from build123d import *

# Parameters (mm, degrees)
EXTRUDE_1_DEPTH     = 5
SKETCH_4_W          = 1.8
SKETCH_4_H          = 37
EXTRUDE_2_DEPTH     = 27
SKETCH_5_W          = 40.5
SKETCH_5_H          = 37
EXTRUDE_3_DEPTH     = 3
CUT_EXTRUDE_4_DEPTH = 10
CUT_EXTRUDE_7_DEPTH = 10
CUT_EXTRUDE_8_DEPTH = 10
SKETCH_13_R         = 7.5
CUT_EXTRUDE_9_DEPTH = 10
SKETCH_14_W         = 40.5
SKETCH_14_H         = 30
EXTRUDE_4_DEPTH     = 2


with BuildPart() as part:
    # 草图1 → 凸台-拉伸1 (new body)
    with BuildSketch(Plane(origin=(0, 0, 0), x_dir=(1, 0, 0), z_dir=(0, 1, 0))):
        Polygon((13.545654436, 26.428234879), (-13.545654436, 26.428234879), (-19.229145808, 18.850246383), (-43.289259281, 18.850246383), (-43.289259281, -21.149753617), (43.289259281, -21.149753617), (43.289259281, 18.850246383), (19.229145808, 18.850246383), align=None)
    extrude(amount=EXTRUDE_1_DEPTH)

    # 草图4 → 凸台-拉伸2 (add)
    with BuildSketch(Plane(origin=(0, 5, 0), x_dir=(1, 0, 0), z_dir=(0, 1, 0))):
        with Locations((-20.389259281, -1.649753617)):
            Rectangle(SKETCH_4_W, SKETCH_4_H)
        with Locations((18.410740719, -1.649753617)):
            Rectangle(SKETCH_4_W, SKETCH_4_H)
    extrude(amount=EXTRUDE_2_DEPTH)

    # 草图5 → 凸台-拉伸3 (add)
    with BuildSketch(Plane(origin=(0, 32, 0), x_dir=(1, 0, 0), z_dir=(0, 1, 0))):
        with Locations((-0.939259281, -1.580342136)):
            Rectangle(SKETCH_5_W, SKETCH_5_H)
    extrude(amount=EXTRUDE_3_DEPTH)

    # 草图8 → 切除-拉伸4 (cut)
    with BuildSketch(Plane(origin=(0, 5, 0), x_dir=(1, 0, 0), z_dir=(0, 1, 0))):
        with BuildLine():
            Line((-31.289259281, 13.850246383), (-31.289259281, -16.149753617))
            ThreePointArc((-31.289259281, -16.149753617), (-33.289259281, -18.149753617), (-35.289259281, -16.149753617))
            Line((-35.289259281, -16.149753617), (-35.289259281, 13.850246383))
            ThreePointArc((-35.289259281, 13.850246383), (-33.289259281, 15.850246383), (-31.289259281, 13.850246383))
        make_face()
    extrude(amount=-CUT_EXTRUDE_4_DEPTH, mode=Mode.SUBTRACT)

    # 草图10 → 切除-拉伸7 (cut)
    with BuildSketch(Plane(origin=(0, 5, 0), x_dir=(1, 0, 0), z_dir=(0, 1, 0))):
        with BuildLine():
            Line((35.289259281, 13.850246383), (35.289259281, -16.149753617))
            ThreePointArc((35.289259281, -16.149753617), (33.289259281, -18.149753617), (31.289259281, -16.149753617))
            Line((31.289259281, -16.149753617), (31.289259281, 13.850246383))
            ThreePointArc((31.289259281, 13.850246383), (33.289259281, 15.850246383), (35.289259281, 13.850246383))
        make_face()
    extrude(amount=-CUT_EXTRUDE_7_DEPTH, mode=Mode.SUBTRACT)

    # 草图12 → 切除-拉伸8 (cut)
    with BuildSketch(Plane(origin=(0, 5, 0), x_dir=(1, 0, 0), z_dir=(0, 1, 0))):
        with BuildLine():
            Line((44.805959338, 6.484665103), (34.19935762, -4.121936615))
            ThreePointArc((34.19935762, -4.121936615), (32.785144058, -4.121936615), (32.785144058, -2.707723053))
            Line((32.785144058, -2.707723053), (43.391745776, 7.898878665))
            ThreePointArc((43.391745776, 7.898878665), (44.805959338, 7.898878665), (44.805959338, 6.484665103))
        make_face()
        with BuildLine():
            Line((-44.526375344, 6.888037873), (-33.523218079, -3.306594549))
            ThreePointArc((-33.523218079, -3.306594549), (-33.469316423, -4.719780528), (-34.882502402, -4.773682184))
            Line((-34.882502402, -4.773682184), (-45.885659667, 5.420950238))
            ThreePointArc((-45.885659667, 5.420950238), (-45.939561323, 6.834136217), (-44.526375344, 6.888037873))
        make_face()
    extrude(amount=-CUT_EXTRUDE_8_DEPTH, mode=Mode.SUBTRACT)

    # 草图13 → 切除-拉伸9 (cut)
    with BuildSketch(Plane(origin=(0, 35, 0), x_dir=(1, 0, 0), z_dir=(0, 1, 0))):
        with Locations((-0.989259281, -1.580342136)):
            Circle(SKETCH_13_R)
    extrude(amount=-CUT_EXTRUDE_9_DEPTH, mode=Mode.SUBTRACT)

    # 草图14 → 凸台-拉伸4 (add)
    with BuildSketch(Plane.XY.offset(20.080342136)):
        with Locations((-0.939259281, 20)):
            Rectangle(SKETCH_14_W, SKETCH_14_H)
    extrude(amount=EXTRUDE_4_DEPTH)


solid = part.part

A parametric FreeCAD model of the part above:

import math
import FreeCAD as App
import Part
import Sketcher
from FreeCAD import Vector
Q = App.Units.Quantity

doc = App.newDocument("Part")
params = doc.addObject("Spreadsheet::Sheet", "Params")
for row, (alias, value) in enumerate([
    ("sketch1_height", "40 mm"),
    ("pad1_length", "5 mm"),
    ("sketch2_height", "37 mm"),
    ("sketch2_width", "1.8 mm"),
    ("pad2_length", "27 mm"),
    ("sketch3_height", "37 mm"),
    ("sketch3_width", "40.5 mm"),
    ("pad3_length", "3 mm"),
    ("sketch4_radius", "2 mm"),
    ("sketch4_height", "30 mm"),
    ("pocket1_length", "10 mm"),
    ("sketch5_radius", "2 mm"),
    ("sketch5_height", "30 mm"),
    ("pocket2_length", "10 mm"),
    ("sketch6_radius", "1 mm"),
    ("sketch6_length", "15 mm"),
    ("pocket3_length", "10 mm"),
    ("sketch7_diameter", "15 mm"),
    ("pocket4_length", "10 mm"),
    ("sketch8_height", "30 mm"),
    ("sketch8_width", "40.5 mm"),
    ("pad4_length", "2 mm"),
], start=1):
    params.set(f"A{row}", alias)
    params.set(f"B{row}", "=" + value)
    params.setAlias(f"B{row}", alias)

body = doc.addObject("PartDesign::Body", "Body")

sketch1 = body.newObject("Sketcher::SketchObject", "Sketch")
sketch1.AttachmentSupport = (doc.getObject("XZ_Plane"), [""])
sketch1.MapMode = "FlatFace"
sketch1.addGeometry(Part.LineSegment(Vector(14, -26, 0), Vector(-14, -26, 0)), False)
sketch1.addGeometry(Part.LineSegment(Vector(-14, -26, 0), Vector(-19, -19, 0)), False)
sketch1.addGeometry(Part.LineSegment(Vector(-19, -19, 0), Vector(-43, -19, 0)), False)
sketch1.addGeometry(Part.LineSegment(Vector(-43, -19, 0), Vector(-43, 21, 0)), False)
sketch1.addGeometry(Part.LineSegment(Vector(-43, 21, 0), Vector(43, 21, 0)), False)
sketch1.addGeometry(Part.LineSegment(Vector(43, 21, 0), Vector(43, -19, 0)), False)
sketch1.addGeometry(Part.LineSegment(Vector(43, -19, 0), Vector(19, -19, 0)), False)
sketch1.addGeometry(Part.LineSegment(Vector(19, -19, 0), Vector(14, -26, 0)), False)
sketch1.addConstraint(Sketcher.Constraint("Coincident", 0, 2, 1, 1))
sketch1.addConstraint(Sketcher.Constraint("Coincident", 1, 2, 2, 1))
sketch1.addConstraint(Sketcher.Constraint("Coincident", 2, 2, 3, 1))
sketch1.addConstraint(Sketcher.Constraint("Coincident", 3, 2, 4, 1))
sketch1.addConstraint(Sketcher.Constraint("Coincident", 4, 2, 5, 1))
sketch1.addConstraint(Sketcher.Constraint("Coincident", 5, 2, 6, 1))
sketch1.addConstraint(Sketcher.Constraint("Coincident", 6, 2, 7, 1))
sketch1.addConstraint(Sketcher.Constraint("Coincident", 7, 2, 0, 1))
sketch1.addConstraint(Sketcher.Constraint("Horizontal", 0))
sketch1.addConstraint(Sketcher.Constraint("Horizontal", 2))
sketch1.addConstraint(Sketcher.Constraint("Vertical", 3))
sketch1.addConstraint(Sketcher.Constraint("Horizontal", 4))
sketch1.addConstraint(Sketcher.Constraint("Vertical", 5))
sketch1.addConstraint(Sketcher.Constraint("Horizontal", 6))
sketch1.addConstraint(Sketcher.Constraint("Symmetric", 2, 2, 5, 2, -2))
sketch1.addConstraint(Sketcher.Constraint("Equal", 2, 6))
sketch1.addConstraint(Sketcher.Constraint("Equal", 1, 7))
sketch1.addConstraint(Sketcher.Constraint("DistanceY", 3, 1, 3, 2, 40.0))
sketch1.addConstraint(Sketcher.Constraint("DistanceX", 0, 2, 0, 1, 27.091309))
sketch1.addConstraint(Sketcher.Constraint("DistanceX", 4, 1, 4, 2, 86.578519))
sketch1.addConstraint(Sketcher.Constraint("DistanceX", 0, 2, 6, 2, 32.7748))
sketch1.addConstraint(Sketcher.Constraint("DistanceY", 0, 2, 1, 2, 7.577988))
sketch1.addConstraint(Sketcher.Constraint("DistanceY", 0, 2, -1, 1, 26.428235))
sketch1.setExpression("Constraints[17]", "Params.sketch1_height")
pad1 = body.newObject("PartDesign::Pad", "Pad")
pad1.Profile = sketch1
pad1.setExpression("Length", "Params.pad1_length")
pad1.Reversed = True

sketch2 = body.newObject("Sketcher::SketchObject", "Sketch001")
sketch2.AttachmentSupport = (doc.getObject("XZ_Plane"), [""])
sketch2.MapMode = "FlatFace"
sketch2.AttachmentOffset = App.Placement(Vector(0, 0, -5), App.Rotation())
sketch2.addGeometry(Part.LineSegment(Vector(-21.3, -16.9, 0), Vector(-21.3, 20.1, 0)), False)
sketch2.addGeometry(Part.LineSegment(Vector(-21.3, 20.1, 0), Vector(-19.5, 20.1, 0)), False)
sketch2.addGeometry(Part.LineSegment(Vector(-19.5, 20.1, 0), Vector(-19.5, -16.9, 0)), False)
sketch2.addGeometry(Part.LineSegment(Vector(-19.5, -16.9, 0), Vector(-21.3, -16.9, 0)), False)
sketch2.addGeometry(Part.LineSegment(Vector(17.5, -16.9, 0), Vector(17.5, 20.1, 0)), False)
sketch2.addGeometry(Part.LineSegment(Vector(17.5, 20.1, 0), Vector(19.3, 20.1, 0)), False)
sketch2.addGeometry(Part.LineSegment(Vector(19.3, 20.1, 0), Vector(19.3, -16.9, 0)), False)
sketch2.addGeometry(Part.LineSegment(Vector(19.3, -16.9, 0), Vector(17.5, -16.9, 0)), False)
sketch2.addConstraint(Sketcher.Constraint("Coincident", 0, 2, 1, 1))
sketch2.addConstraint(Sketcher.Constraint("Coincident", 1, 2, 2, 1))
sketch2.addConstraint(Sketcher.Constraint("Coincident", 2, 2, 3, 1))
sketch2.addConstraint(Sketcher.Constraint("Coincident", 3, 2, 0, 1))
sketch2.addConstraint(Sketcher.Constraint("Coincident", 4, 2, 5, 1))
sketch2.addConstraint(Sketcher.Constraint("Coincident", 5, 2, 6, 1))
sketch2.addConstraint(Sketcher.Constraint("Coincident", 6, 2, 7, 1))
sketch2.addConstraint(Sketcher.Constraint("Coincident", 7, 2, 4, 1))
sketch2.addConstraint(Sketcher.Constraint("Vertical", 0))
sketch2.addConstraint(Sketcher.Constraint("Horizontal", 1))
sketch2.addConstraint(Sketcher.Constraint("Vertical", 2))
sketch2.addConstraint(Sketcher.Constraint("Horizontal", 3))
sketch2.addConstraint(Sketcher.Constraint("Vertical", 4))
sketch2.addConstraint(Sketcher.Constraint("Horizontal", 5))
sketch2.addConstraint(Sketcher.Constraint("Vertical", 6))
sketch2.addConstraint(Sketcher.Constraint("Horizontal", 7))
sketch2.addConstraint(Sketcher.Constraint("Horizontal", 1, 2, 4, 2))
sketch2.addConstraint(Sketcher.Constraint("Horizontal", 3, 2, 6, 2))
sketch2.addConstraint(Sketcher.Constraint("Equal", 3, 5))
sketch2.addConstraint(Sketcher.Constraint("DistanceY", 0, 1, 0, 2, 37.0))
sketch2.addConstraint(Sketcher.Constraint("DistanceX", 1, 1, 1, 2, 1.8))
sketch2.addConstraint(Sketcher.Constraint("DistanceX", 1, 2, 4, 2, 37.0))
sketch2.addConstraint(Sketcher.Constraint("DistanceX", 0, 2, -1, 1, 21.289259))
sketch2.addConstraint(Sketcher.Constraint("DistanceY", -1, 1, 0, 2, 20.149754))
sketch2.setExpression("Constraints[19]", "Params.sketch2_height")
sketch2.setExpression("Constraints[20]", "Params.sketch2_width")
pad2 = body.newObject("PartDesign::Pad", "Pad001")
pad2.Profile = sketch2
pad2.setExpression("Length", "Params.pad2_length")
pad2.Reversed = True

sketch3 = body.newObject("Sketcher::SketchObject", "Sketch002")
sketch3.AttachmentSupport = (doc.getObject("XZ_Plane"), [""])
sketch3.MapMode = "FlatFace"
sketch3.AttachmentOffset = App.Placement(Vector(0, 0, -32), App.Rotation())
sketch3.addGeometry(Part.LineSegment(Vector(-21, -17, 0), Vector(-21, 20, 0)), False)
sketch3.addGeometry(Part.LineSegment(Vector(-21, 20, 0), Vector(19, 20, 0)), False)
sketch3.addGeometry(Part.LineSegment(Vector(19, 20, 0), Vector(19, -17, 0)), False)
sketch3.addGeometry(Part.LineSegment(Vector(19, -17, 0), Vector(-21, -17, 0)), False)
sketch3.addConstraint(Sketcher.Constraint("Coincident", 0, 2, 1, 1))
sketch3.addConstraint(Sketcher.Constraint("Coincident", 1, 2, 2, 1))
sketch3.addConstraint(Sketcher.Constraint("Coincident", 2, 2, 3, 1))
sketch3.addConstraint(Sketcher.Constraint("Coincident", 3, 2, 0, 1))
sketch3.addConstraint(Sketcher.Constraint("Vertical", 0))
sketch3.addConstraint(Sketcher.Constraint("Horizontal", 1))
sketch3.addConstraint(Sketcher.Constraint("Vertical", 2))
sketch3.addConstraint(Sketcher.Constraint("Horizontal", 3))
sketch3.addConstraint(Sketcher.Constraint("DistanceY", 0, 1, 0, 2, 37.0))
sketch3.addConstraint(Sketcher.Constraint("DistanceX", 1, 1, 1, 2, 40.5))
sketch3.addConstraint(Sketcher.Constraint("DistanceX", 0, 2, -1, 1, 21.189259))
sketch3.addConstraint(Sketcher.Constraint("DistanceY", -1, 1, 0, 2, 20.080342))
sketch3.setExpression("Constraints[8]", "Params.sketch3_height")
sketch3.setExpression("Constraints[9]", "Params.sketch3_width")
pad3 = body.newObject("PartDesign::Pad", "Pad002")
pad3.Profile = sketch3
pad3.setExpression("Length", "Params.pad3_length")
pad3.Reversed = True

sketch4 = body.newObject("Sketcher::SketchObject", "Sketch003")
sketch4.AttachmentSupport = (doc.getObject("XZ_Plane"), [""])
sketch4.MapMode = "FlatFace"
sketch4.AttachmentOffset = App.Placement(Vector(0, 0, -5), App.Rotation())
sketch4.addGeometry(Part.LineSegment(Vector(-31.3, 16.1, 0), Vector(-31.3, -13.9, 0)), False)
sketch4.addGeometry(Part.ArcOfCircle(Part.Circle(Vector(-33.3, -13.9, 0), Vector(0, 0, 1), 2), math.radians(180), math.radians(360)), False)
sketch4.addGeometry(Part.LineSegment(Vector(-35.3, -13.9, 0), Vector(-35.3, 16.1, 0)), False)
sketch4.addGeometry(Part.ArcOfCircle(Part.Circle(Vector(-33.3, 16.1, 0), Vector(0, 0, 1), 2), math.radians(0), math.radians(180)), False)
sketch4.addConstraint(Sketcher.Constraint("Tangent", 0, 2, 1, 2))
sketch4.addConstraint(Sketcher.Constraint("Tangent", 1, 1, 2, 1))
sketch4.addConstraint(Sketcher.Constraint("Tangent", 2, 2, 3, 2))
sketch4.addConstraint(Sketcher.Constraint("Tangent", 3, 1, 0, 1))
sketch4.addConstraint(Sketcher.Constraint("Vertical", 0))
sketch4.addConstraint(Sketcher.Constraint("Vertical", 2))
sketch4.addConstraint(Sketcher.Constraint("Radius", 1, 2.0))
sketch4.addConstraint(Sketcher.Constraint("DistanceY", 0, 2, 0, 1, 30.0))
sketch4.addConstraint(Sketcher.Constraint("DistanceX", 1, 3, -1, 1, 33.289259))
sketch4.addConstraint(Sketcher.Constraint("DistanceY", 1, 3, -1, 1, 13.850246))
sketch4.setExpression("Constraints[6]", "Params.sketch4_radius")
sketch4.setExpression("Constraints[7]", "Params.sketch4_height")
pocket1 = body.newObject("PartDesign::Pocket", "Pocket")
pocket1.Profile = sketch4
pocket1.setExpression("Length", "Params.pocket1_length")
pocket1.Reversed = True

sketch5 = body.newObject("Sketcher::SketchObject", "Sketch004")
sketch5.AttachmentSupport = (doc.getObject("XZ_Plane"), [""])
sketch5.MapMode = "FlatFace"
sketch5.AttachmentOffset = App.Placement(Vector(0, 0, -5), App.Rotation())
sketch5.addGeometry(Part.LineSegment(Vector(35.3, 16.1, 0), Vector(35.3, -13.9, 0)), False)
sketch5.addGeometry(Part.ArcOfCircle(Part.Circle(Vector(33.3, -13.9, 0), Vector(0, 0, 1), 2), math.radians(180), math.radians(360)), False)
sketch5.addGeometry(Part.LineSegment(Vector(31.3, -13.9, 0), Vector(31.3, 16.1, 0)), False)
sketch5.addGeometry(Part.ArcOfCircle(Part.Circle(Vector(33.3, 16.1, 0), Vector(0, 0, 1), 2), math.radians(0), math.radians(180)), False)
sketch5.addConstraint(Sketcher.Constraint("Tangent", 0, 2, 1, 2))
sketch5.addConstraint(Sketcher.Constraint("Tangent", 1, 1, 2, 1))
sketch5.addConstraint(Sketcher.Constraint("Tangent", 2, 2, 3, 2))
sketch5.addConstraint(Sketcher.Constraint("Tangent", 3, 1, 0, 1))
sketch5.addConstraint(Sketcher.Constraint("Vertical", 0))
sketch5.addConstraint(Sketcher.Constraint("Vertical", 2))
sketch5.addConstraint(Sketcher.Constraint("Radius", 1, 2.0))
sketch5.addConstraint(Sketcher.Constraint("DistanceY", 0, 2, 0, 1, 30.0))
sketch5.addConstraint(Sketcher.Constraint("DistanceX", -1, 1, 1, 3, 33.289259))
sketch5.addConstraint(Sketcher.Constraint("DistanceY", 1, 3, -1, 1, 13.850246))
sketch5.setExpression("Constraints[6]", "Params.sketch5_radius")
sketch5.setExpression("Constraints[7]", "Params.sketch5_height")
pocket2 = body.newObject("PartDesign::Pocket", "Pocket001")
pocket2.Profile = sketch5
pocket2.setExpression("Length", "Params.pocket2_length")
pocket2.Reversed = True

sketch6 = body.newObject("Sketcher::SketchObject", "Sketch005")
sketch6.AttachmentSupport = (doc.getObject("XZ_Plane"), [""])
sketch6.MapMode = "FlatFace"
sketch6.AttachmentOffset = App.Placement(Vector(0, 0, -5), App.Rotation())
sketch6.addGeometry(Part.LineSegment(Vector(34.2, 4.1, 0), Vector(44.8, -6.5, 0)), False)
sketch6.addGeometry(Part.ArcOfCircle(Part.Circle(Vector(44.1, -7.2, 0), Vector(0, 0, 1), 1), math.radians(-135), math.radians(45)), False)
sketch6.addGeometry(Part.LineSegment(Vector(43.4, -7.9, 0), Vector(32.8, 2.7, 0)), False)
sketch6.addGeometry(Part.ArcOfCircle(Part.Circle(Vector(33.5, 3.4, 0), Vector(0, 0, 1), 1), math.radians(45), math.radians(225)), False)
sketch6.addGeometry(Part.LineSegment(Vector(-33.5, 3.3, 0), Vector(-44.5, -6.9, 0)), False)
sketch6.addGeometry(Part.ArcOfCircle(Part.Circle(Vector(-45.2, -6.2, 0), Vector(0, 0, 1), 1), math.radians(133), math.radians(313)), False)
sketch6.addGeometry(Part.LineSegment(Vector(-45.9, -5.4, 0), Vector(-34.9, 4.8, 0)), False)
sketch6.addGeometry(Part.ArcOfCircle(Part.Circle(Vector(-34.2, 4, 0), Vector(0, 0, 1), 1), math.radians(-47), math.radians(133)), False)
sketch6.addConstraint(Sketcher.Constraint("Tangent", 0, 2, 1, 2))
sketch6.addConstraint(Sketcher.Constraint("Tangent", 1, 1, 2, 1))
sketch6.addConstraint(Sketcher.Constraint("Tangent", 2, 2, 3, 2))
sketch6.addConstraint(Sketcher.Constraint("Tangent", 3, 1, 0, 1))
sketch6.addConstraint(Sketcher.Constraint("Tangent", 4, 2, 5, 2))
sketch6.addConstraint(Sketcher.Constraint("Tangent", 5, 1, 6, 1))
sketch6.addConstraint(Sketcher.Constraint("Tangent", 6, 2, 7, 2))
sketch6.addConstraint(Sketcher.Constraint("Tangent", 7, 1, 4, 1))
sketch6.addConstraint(Sketcher.Constraint("Equal", 1, 3))
sketch6.addConstraint(Sketcher.Constraint("Equal", 3, 5))
sketch6.addConstraint(Sketcher.Constraint("Equal", 5, 7))
sketch6.addConstraint(Sketcher.Constraint("Equal", 2, 4))
sketch6.addConstraint(Sketcher.Constraint("Radius", 1, 1.0))
sketch6.addConstraint(Sketcher.Constraint("Angle", 0, Q("-45 deg")))
sketch6.addConstraint(Sketcher.Constraint("Distance", 0, 15.0))
sketch6.addConstraint(Sketcher.Constraint("DistanceX", 5, 1, 7, 3, 11.682799))
sketch6.addConstraint(Sketcher.Constraint("DistanceY", 1, 3, -1, 1, 7.191772))
sketch6.addConstraint(Sketcher.Constraint("DistanceX", -1, 1, 3, 3, 33.492251))
sketch6.addConstraint(Sketcher.Constraint("DistanceX", 7, 3, -1, 1, 34.20286))
sketch6.addConstraint(Sketcher.Constraint("DistanceY", -1, 1, 7, 3, 4.040138))
sketch6.setExpression("Constraints[12]", "Params.sketch6_radius")
sketch6.setExpression("Constraints[14]", "Params.sketch6_length")
pocket3 = body.newObject("PartDesign::Pocket", "Pocket002")
pocket3.Profile = sketch6
pocket3.setExpression("Length", "Params.pocket3_length")
pocket3.Reversed = True

sketch7 = body.newObject("Sketcher::SketchObject", "Sketch006")
sketch7.AttachmentSupport = (doc.getObject("XZ_Plane"), [""])
sketch7.MapMode = "FlatFace"
sketch7.AttachmentOffset = App.Placement(Vector(0, 0, -35), App.Rotation())
sketch7.addGeometry(Part.Circle(Vector(-1, 2, 0), Vector(0, 0, 1), 8), False)
sketch7.addConstraint(Sketcher.Constraint("Diameter", 0, 15.0))
sketch7.addConstraint(Sketcher.Constraint("DistanceX", 0, 3, -1, 1, 0.989259))
sketch7.addConstraint(Sketcher.Constraint("DistanceY", -1, 1, 0, 3, 1.580342))
sketch7.setExpression("Constraints[0]", "Params.sketch7_diameter")
pocket4 = body.newObject("PartDesign::Pocket", "Pocket003")
pocket4.Profile = sketch7
pocket4.setExpression("Length", "Params.pocket4_length")
pocket4.Reversed = True

sketch8 = body.newObject("Sketcher::SketchObject", "Sketch007")
sketch8.AttachmentSupport = (doc.getObject("XY_Plane"), [""])
sketch8.MapMode = "FlatFace"
sketch8.AttachmentOffset = App.Placement(Vector(0, 0, 20.080342), App.Rotation())
sketch8.addGeometry(Part.LineSegment(Vector(-21, 35, 0), Vector(-21, 5, 0)), False)
sketch8.addGeometry(Part.LineSegment(Vector(-21, 5, 0), Vector(19, 5, 0)), False)
sketch8.addGeometry(Part.LineSegment(Vector(19, 5, 0), Vector(19, 35, 0)), False)
sketch8.addGeometry(Part.LineSegment(Vector(19, 35, 0), Vector(-21, 35, 0)), False)
sketch8.addConstraint(Sketcher.Constraint("Coincident", 0, 2, 1, 1))
sketch8.addConstraint(Sketcher.Constraint("Coincident", 1, 2, 2, 1))
sketch8.addConstraint(Sketcher.Constraint("Coincident", 2, 2, 3, 1))
sketch8.addConstraint(Sketcher.Constraint("Coincident", 3, 2, 0, 1))
sketch8.addConstraint(Sketcher.Constraint("Vertical", 0))
sketch8.addConstraint(Sketcher.Constraint("Horizontal", 1))
sketch8.addConstraint(Sketcher.Constraint("Vertical", 2))
sketch8.addConstraint(Sketcher.Constraint("Horizontal", 3))
sketch8.addConstraint(Sketcher.Constraint("DistanceY", 0, 2, 0, 1, 30.0))
sketch8.addConstraint(Sketcher.Constraint("DistanceX", 1, 1, 1, 2, 40.5))
sketch8.addConstraint(Sketcher.Constraint("DistanceY", -1, 1, 0, 2, 5.0))
sketch8.addConstraint(Sketcher.Constraint("DistanceX", 0, 2, -1, 1, 21.189259))
sketch8.setExpression("Constraints[8]", "Params.sketch8_height")
sketch8.setExpression("Constraints[9]", "Params.sketch8_width")
pad4 = body.newObject("PartDesign::Pad", "Pad003")
pad4.Profile = sketch8
pad4.setExpression("Length", "Params.pad4_length")

doc.recompute()
